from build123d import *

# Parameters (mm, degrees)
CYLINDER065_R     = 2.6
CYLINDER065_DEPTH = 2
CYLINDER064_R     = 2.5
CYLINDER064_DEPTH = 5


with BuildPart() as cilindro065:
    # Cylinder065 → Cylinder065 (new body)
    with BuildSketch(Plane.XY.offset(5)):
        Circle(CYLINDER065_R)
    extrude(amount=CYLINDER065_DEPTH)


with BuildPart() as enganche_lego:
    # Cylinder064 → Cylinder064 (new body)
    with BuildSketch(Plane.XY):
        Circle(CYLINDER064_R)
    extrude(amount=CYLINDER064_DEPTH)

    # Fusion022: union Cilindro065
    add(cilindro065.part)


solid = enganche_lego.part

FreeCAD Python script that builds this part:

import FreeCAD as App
import Part
import Sketcher

V = App.Vector

doc = App.newDocument("Part")
body = doc.addObject("PartDesign::Body", "Body")

# Sketch on XY plane
sketch1 = doc.addObject("Sketcher::SketchObject", "Sketch")
body.addObject(sketch1)
sketch1.AttachmentSupport = (doc.XY_Plane, [""])
sketch1.MapMode = "FlatFace"
sketch1.AttachmentOffset = App.Placement(V(0, 0, 5), App.Rotation())
sketch1.addGeometry(Part.Circle(V(0, 0, 0), V(0, 0, 1), 2.6), False)
sketch1.addConstraint([
    Sketcher.Constraint("Coincident", 0, 3, -1, 1),
    Sketcher.Constraint("Diameter", 0, 5.2),
])
pad1 = doc.addObject("PartDesign::Pad", "Pad")
body.addObject(pad1)
pad1.Profile = sketch1
pad1.Length = 2
body2 = doc.addObject("PartDesign::Body", "Body001")

# Sketch on XY plane
sketch2 = doc.addObject("Sketcher::SketchObject", "Sketch001")
body2.addObject(sketch2)
sketch2.AttachmentSupport = (doc.getObject("XY_Plane001"), [""])
sketch2.MapMode = "FlatFace"
sketch2.addGeometry(Part.Circle(V(0, 0, 0), V(0, 0, 1), 2.5), False)
sketch2.addConstraint([
    Sketcher.Constraint("Coincident", 0, 3, -1, 1),
    Sketcher.Constraint("Diameter", 0, 5.0),
])
pad2 = doc.addObject("PartDesign::Pad", "Pad001")
body2.addObject(pad2)
pad2.Profile = sketch2
pad2.Length = 5
doc.recompute()

boolean = doc.addObject("PartDesign::Boolean", "Boolean")
body2.addObject(boolean)
boolean.Type = "Fuse"
boolean.addObjects([body])

doc.recompute()
